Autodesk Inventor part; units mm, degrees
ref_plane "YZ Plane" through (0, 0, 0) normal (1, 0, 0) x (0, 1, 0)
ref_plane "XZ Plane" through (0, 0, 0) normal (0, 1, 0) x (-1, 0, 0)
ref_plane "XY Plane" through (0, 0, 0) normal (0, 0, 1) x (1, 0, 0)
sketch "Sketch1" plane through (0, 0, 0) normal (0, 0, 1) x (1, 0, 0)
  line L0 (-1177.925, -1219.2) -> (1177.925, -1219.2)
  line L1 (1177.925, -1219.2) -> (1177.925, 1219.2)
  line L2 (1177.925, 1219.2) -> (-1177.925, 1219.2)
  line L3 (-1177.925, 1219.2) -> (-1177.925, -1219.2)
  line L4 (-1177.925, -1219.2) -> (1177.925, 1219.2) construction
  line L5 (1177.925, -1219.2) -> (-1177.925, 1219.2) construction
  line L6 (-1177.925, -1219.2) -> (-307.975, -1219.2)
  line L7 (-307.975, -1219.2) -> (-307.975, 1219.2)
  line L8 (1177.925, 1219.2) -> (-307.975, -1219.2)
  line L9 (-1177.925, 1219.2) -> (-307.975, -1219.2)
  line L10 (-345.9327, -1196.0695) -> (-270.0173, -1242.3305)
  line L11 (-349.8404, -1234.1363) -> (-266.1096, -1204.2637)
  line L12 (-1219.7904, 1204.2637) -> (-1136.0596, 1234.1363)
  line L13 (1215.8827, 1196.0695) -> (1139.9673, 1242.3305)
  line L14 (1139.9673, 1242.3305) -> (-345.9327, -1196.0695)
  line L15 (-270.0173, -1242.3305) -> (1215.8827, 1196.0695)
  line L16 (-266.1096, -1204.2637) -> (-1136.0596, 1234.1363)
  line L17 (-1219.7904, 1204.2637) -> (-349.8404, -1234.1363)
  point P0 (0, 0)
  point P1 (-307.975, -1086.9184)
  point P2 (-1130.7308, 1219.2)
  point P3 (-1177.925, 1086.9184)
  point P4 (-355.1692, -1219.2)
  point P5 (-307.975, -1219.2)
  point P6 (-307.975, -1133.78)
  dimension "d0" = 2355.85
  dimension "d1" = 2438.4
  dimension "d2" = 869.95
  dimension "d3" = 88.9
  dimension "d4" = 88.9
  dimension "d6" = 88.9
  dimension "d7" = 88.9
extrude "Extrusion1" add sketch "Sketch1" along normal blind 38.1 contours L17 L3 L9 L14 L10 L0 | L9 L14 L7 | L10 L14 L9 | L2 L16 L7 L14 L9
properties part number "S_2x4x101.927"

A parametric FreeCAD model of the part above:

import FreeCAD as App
import Part
import Sketcher
from FreeCAD import Vector
Q = App.Units.Quantity


def add_polygon(sketch, points):
    """Adds a closed chain of lines whose ends are joined by coincident constraints."""
    first, n = sketch.GeometryCount, len(points)
    for a, b in zip(points, points[1:] + points[:1]):
        sketch.addGeometry(Part.LineSegment(App.Vector(*a, 0), App.Vector(*b, 0)), False)
    for i in range(n):
        sketch.addConstraint(Sketcher.Constraint("Coincident", first + i, 2, first + (i + 1) % n, 1))

doc = App.newDocument("Part")
body = doc.addObject("PartDesign::Body", "Body")

# Sketch on XY plane
sketch1 = body.newObject("Sketcher::SketchObject", "Sketch")
sketch1.AttachmentSupport = (doc.getObject("XY_Plane"), [""])
sketch1.MapMode = "FlatFace"
add_polygon(sketch1, [(-1177.925, 1086.918345), (-355.169236, -1219.2), (-307.975, -1219.2), (-307.975, -1086.918345), (-1130.730764, 1219.2), (-1177.925, 1219.2)])  # lines 0-5
sketch1.addConstraint(Sketcher.Constraint("Horizontal", 1))
sketch1.addConstraint(Sketcher.Constraint("Vertical", 2))
sketch1.addConstraint(Sketcher.Constraint("Horizontal", 4))
sketch1.addConstraint(Sketcher.Constraint("Vertical", 5))
sketch1.addConstraint(Sketcher.Constraint("Parallel", 0, 3))
sketch1.addConstraint(Sketcher.Constraint("Equal", 1, 4))
sketch1.addConstraint(Sketcher.Constraint("DistanceY", 0, 2, 3, 2, Q("96 in")))
sketch1.addConstraint(Sketcher.Constraint("DistanceX", 4, 2, 2, 2, Q("34.25 in")))
sketch1.addConstraint(Sketcher.Constraint("DistanceY", 0, 2, -1, 1, Q("48 in")))
sketch1.addConstraint(Sketcher.Constraint("DistanceX", 1, 2, -1, 1, Q("12.125 in")))
sketch1.addConstraint(Sketcher.Constraint("Distance", 0, Q("96.3973 in")))
sketch1.addConstraint(Sketcher.Constraint("DistanceX", 1, 1, 1, 2, Q("47.1942 mm")))
pad1 = body.newObject("PartDesign::Pad", "Pad")
pad1.Profile = sketch1
pad1.Length = Q("1.5 in")

doc.recompute()
